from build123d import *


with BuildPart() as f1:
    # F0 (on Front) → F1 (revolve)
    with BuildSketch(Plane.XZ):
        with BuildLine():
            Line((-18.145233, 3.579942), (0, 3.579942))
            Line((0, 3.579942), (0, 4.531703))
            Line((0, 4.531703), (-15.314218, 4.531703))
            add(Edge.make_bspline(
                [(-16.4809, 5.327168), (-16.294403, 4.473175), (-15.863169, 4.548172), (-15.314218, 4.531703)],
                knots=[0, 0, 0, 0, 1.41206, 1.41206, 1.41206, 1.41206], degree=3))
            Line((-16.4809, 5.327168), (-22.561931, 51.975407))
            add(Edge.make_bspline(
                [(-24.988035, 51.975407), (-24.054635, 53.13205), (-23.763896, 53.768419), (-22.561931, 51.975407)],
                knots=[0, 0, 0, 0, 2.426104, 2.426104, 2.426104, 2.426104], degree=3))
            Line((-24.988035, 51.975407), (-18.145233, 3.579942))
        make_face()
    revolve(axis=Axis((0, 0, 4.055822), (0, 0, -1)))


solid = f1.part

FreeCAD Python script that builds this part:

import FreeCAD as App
import Part
import Sketcher
from FreeCAD import Vector

doc = App.newDocument("Part")
params = doc.addObject("Spreadsheet::Sheet", "Params")
for row, (alias, value) in enumerate([
    ("revolution_angle", "360 deg"),
], start=1):
    params.set(f"A{row}", alias)
    params.set(f"B{row}", "=" + value)
    params.setAlias(f"B{row}", alias)

body = doc.addObject("PartDesign::Body", "Body")

sketch1 = doc.addObject("Sketcher::SketchObject", "Sketch")
body.addObject(sketch1)
sketch1.AttachmentSupport = (doc.XZ_Plane, [""])
sketch1.MapMode = "FlatFace"
sketch1.addGeometry([
    Part.LineSegment(Vector(-18.145233, 3.579942, 0), Vector(0, 3.579942, 0)),
    Part.LineSegment(Vector(0, 3.579942, 0), Vector(0, 4.531703, 0)),
    Part.LineSegment(Vector(0, 4.531703, 0), Vector(-15.314218, 4.531703, 0)),
    Part.BSplineCurve([Vector(-16.4809, 5.327168, 0), Vector(-16.294403, 4.473175, 0), Vector(-15.863169, 4.548172, 0), Vector(-15.314218, 4.531703, 0)], [4, 4], [0, 1.41206], False, 3, [1, 1, 1, 1], False),
    Part.LineSegment(Vector(-16.4809, 5.327168, 0), Vector(-22.561931, 51.975407, 0)),
    Part.BSplineCurve([Vector(-24.988035, 51.975407, 0), Vector(-24.054635, 53.13205, 0), Vector(-23.763896, 53.768419, 0), Vector(-22.561931, 51.975407, 0)], [4, 4], [0, 2.426104], False, 3, [1, 1, 1, 1], False),
    Part.LineSegment(Vector(-24.988035, 51.975407, 0), Vector(-18.145233, 3.579942, 0)),
], False)
sketch1.addConstraint([
    Sketcher.Constraint("Block", 3),
    Sketcher.Constraint("Block", 5),
    Sketcher.Constraint("Coincident", 0, 2, 1, 1),
    Sketcher.Constraint("Coincident", 1, 2, 2, 1),
    Sketcher.Constraint("Coincident", 2, 2, 3, 2),
    Sketcher.Constraint("Coincident", 3, 1, 4, 1),
    Sketcher.Constraint("Coincident", 4, 2, 5, 2),
    Sketcher.Constraint("Coincident", 5, 1, 6, 1),
    Sketcher.Constraint("Coincident", 6, 2, 0, 1),
    Sketcher.Constraint("Horizontal", 0),
    Sketcher.Constraint("Vertical", 1),
    Sketcher.Constraint("Horizontal", 2),
    Sketcher.Constraint("PointOnObject", 0, 2, -2),
    Sketcher.Constraint("DistanceY", 1, 1, 1, 2, 0.951761),
    Sketcher.Constraint("DistanceX", 4, 2, 6, 2, 4.416698),
])
revolution = doc.addObject("PartDesign::Revolution", "Revolution")
body.addObject(revolution)
revolution.Profile = sketch1
revolution.ReferenceAxis = (sketch1, ["V_Axis"])
revolution.setExpression("Angle", "Params.revolution_angle")

doc.recompute()
